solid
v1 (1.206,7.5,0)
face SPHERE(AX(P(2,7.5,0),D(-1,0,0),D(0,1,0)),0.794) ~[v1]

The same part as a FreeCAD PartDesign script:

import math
import FreeCAD as App
import Part
import Sketcher
from FreeCAD import Vector
Q = App.Units.Quantity

doc = App.newDocument("Part")
body = doc.addObject("PartDesign::Body", "Body")

# Sketch on XY plane
sketch1 = doc.addObject("Sketcher::SketchObject", "Sketch")
body.addObject(sketch1)
sketch1.AttachmentSupport = (doc.XY_Plane, [""])
sketch1.MapMode = "FlatFace"
sketch1.addGeometry([
    Part.LineSegment(Vector(1.2, 7.5, 0), Vector(2.8, 7.5, 0)),
    Part.ArcOfCircle(Part.Circle(Vector(2, 7.5, 0), Vector(0, 0, 1), 0.8), math.radians(0), math.radians(180)),
], False)
sketch1.addGeometry(Part.LineSegment(Vector(1.2, 7.5, 0), Vector(2.8, 7.5, 0)), True)  # axis
sketch1.addConstraint([
    Sketcher.Constraint("Coincident", 0, 1, 1, 2),
    Sketcher.Constraint("Coincident", 1, 1, 0, 2),
    Sketcher.Constraint("Horizontal", 0),
    Sketcher.Constraint("Horizontal", 2),
    Sketcher.Constraint("Coincident", 2, 1, 0, 1),
    Sketcher.Constraint("Horizontal", 1, 3, 0, 1),
    Sketcher.Constraint("Equal", 0, 2),
    Sketcher.Constraint("DistanceX", -1, 1, 1, 3, Q("2 mm")),
    Sketcher.Constraint("Radius", 1, Q("0.794 mm")),
    Sketcher.Constraint("DistanceY", -1, 1, 1, 3, Q("7.5 mm")),
])
revolution = doc.addObject("PartDesign::Revolution", "Revolution")
body.addObject(revolution)
revolution.Profile = sketch1
revolution.ReferenceAxis = (sketch1, ["Axis0"])
revolution.Angle = 360

doc.recompute()
